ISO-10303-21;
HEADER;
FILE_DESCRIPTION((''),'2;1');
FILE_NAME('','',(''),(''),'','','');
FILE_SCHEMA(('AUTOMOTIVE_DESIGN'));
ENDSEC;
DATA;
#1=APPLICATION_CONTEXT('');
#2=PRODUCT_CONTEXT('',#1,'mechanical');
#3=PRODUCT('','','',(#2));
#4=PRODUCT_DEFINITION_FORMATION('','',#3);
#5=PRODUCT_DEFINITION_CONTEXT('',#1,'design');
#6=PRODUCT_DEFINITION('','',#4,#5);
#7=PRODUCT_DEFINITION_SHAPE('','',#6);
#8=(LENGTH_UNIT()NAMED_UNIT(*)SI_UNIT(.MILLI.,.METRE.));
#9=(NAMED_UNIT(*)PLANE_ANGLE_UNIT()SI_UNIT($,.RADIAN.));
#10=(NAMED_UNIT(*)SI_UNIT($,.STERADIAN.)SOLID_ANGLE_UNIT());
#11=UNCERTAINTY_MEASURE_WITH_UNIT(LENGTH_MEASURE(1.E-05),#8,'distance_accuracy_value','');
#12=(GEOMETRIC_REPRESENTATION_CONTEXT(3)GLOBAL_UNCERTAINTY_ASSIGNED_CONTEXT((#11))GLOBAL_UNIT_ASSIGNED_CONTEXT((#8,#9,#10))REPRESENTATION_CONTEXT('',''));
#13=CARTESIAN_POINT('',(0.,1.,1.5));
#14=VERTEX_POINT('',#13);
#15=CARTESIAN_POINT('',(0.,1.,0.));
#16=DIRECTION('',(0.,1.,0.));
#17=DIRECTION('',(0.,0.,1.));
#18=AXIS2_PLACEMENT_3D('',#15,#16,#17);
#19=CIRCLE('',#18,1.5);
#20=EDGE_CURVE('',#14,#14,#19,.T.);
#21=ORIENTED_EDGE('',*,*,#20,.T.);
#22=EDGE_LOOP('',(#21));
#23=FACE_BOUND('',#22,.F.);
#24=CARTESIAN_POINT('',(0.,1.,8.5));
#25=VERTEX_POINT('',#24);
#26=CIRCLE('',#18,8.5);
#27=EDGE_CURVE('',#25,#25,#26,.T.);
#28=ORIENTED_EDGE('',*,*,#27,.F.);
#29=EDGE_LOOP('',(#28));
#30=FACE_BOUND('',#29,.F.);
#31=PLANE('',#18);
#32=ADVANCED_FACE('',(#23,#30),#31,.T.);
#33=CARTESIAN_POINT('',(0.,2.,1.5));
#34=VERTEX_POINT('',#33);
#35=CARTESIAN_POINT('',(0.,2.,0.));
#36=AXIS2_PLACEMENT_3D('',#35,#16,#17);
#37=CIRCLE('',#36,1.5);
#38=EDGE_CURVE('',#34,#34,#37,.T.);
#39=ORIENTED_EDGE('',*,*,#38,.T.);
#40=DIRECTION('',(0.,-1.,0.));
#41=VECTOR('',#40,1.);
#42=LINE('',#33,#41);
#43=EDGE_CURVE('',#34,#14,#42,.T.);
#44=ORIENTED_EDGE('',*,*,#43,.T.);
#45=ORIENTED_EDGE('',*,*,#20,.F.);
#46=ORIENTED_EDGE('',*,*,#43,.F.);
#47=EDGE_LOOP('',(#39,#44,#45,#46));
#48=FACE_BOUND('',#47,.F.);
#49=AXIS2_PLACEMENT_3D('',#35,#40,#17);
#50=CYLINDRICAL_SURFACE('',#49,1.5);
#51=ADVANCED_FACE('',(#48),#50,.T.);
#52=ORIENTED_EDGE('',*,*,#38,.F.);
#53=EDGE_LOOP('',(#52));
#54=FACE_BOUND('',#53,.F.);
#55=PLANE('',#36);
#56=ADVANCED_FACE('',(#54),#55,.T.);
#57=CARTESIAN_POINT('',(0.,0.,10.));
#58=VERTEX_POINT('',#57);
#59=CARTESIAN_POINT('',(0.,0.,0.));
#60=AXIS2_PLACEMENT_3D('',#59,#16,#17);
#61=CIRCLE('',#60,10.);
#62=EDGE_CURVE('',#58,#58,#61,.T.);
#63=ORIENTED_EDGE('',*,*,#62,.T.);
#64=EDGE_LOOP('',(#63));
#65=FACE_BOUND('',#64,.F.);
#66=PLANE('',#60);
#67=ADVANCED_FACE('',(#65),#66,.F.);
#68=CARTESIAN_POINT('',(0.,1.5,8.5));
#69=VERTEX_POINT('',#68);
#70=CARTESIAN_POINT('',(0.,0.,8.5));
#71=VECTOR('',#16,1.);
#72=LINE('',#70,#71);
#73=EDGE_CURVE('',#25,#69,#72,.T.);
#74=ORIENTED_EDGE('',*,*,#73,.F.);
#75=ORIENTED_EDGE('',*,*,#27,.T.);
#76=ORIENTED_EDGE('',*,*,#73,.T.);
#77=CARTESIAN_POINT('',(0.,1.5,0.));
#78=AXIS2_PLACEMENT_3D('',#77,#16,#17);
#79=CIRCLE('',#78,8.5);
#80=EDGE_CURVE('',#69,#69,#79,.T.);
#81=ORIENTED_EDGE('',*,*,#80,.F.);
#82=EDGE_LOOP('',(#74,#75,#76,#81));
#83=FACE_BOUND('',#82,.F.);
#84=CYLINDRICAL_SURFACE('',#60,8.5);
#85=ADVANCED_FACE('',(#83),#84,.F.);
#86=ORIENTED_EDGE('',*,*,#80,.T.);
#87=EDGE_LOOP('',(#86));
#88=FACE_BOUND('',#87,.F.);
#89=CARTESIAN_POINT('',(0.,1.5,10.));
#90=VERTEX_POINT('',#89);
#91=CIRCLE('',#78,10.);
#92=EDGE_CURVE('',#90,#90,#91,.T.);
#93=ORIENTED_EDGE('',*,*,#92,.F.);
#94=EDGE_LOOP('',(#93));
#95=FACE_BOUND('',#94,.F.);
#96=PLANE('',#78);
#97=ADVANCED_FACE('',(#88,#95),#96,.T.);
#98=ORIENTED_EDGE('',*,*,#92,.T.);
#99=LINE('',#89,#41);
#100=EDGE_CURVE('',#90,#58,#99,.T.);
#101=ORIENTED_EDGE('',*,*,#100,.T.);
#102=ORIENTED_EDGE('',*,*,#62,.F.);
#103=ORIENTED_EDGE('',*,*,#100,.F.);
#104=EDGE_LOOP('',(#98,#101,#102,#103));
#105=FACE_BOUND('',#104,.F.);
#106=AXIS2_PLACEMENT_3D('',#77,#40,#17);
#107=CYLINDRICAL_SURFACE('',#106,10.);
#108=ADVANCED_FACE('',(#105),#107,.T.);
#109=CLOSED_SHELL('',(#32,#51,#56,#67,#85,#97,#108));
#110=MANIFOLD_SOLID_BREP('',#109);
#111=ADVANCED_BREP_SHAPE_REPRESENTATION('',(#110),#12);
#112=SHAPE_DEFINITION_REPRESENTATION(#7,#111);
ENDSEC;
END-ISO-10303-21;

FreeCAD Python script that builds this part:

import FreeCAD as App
import Part
import Sketcher
from FreeCAD import Vector

doc = App.newDocument("Part")
body = doc.addObject("PartDesign::Body", "Body")

# Sketch on YZ plane
sketch1 = body.newObject("Sketcher::SketchObject", "Sketch")
sketch1.AttachmentSupport = (doc.getObject("YZ_Plane"), [""])
sketch1.MapMode = "FlatFace"
sketch1.addGeometry([
    Part.LineSegment(Vector(0, 10, 0), Vector(0, 0, 0)),  # 0
    Part.LineSegment(Vector(0, 0, 0), Vector(2, 0, 0)),  # 1
    Part.LineSegment(Vector(2, 0, 0), Vector(2, 1.5, 0)),  # 2
    Part.LineSegment(Vector(2, 1.5, 0), Vector(1, 1.5, 0)),  # 3
    Part.LineSegment(Vector(1, 1.5, 0), Vector(1, 8.5, 0)),  # 4
    Part.LineSegment(Vector(1, 8.5, 0), Vector(1.5, 8.5, 0)),  # 5
    Part.LineSegment(Vector(1.5, 8.5, 0), Vector(1.5, 10, 0)),  # 6
    Part.LineSegment(Vector(1.5, 10, 0), Vector(0, 10, 0)),  # 7
], False)
sketch1.addConstraint([
    Sketcher.Constraint("Coincident", 0, 2, 1, 1),
    Sketcher.Constraint("Coincident", 1, 2, 2, 1),
    Sketcher.Constraint("Coincident", 2, 2, 3, 1),
    Sketcher.Constraint("Coincident", 3, 2, 4, 1),
    Sketcher.Constraint("Coincident", 4, 2, 5, 1),
    Sketcher.Constraint("Coincident", 5, 2, 6, 1),
    Sketcher.Constraint("Coincident", 6, 2, 7, 1),
    Sketcher.Constraint("Coincident", 7, 2, 0, 1),
    Sketcher.Constraint("Vertical", 0),
    Sketcher.Constraint("Horizontal", 1),
    Sketcher.Constraint("Vertical", 2),
    Sketcher.Constraint("Horizontal", 3),
    Sketcher.Constraint("Vertical", 4),
    Sketcher.Constraint("Horizontal", 5),
    Sketcher.Constraint("Vertical", 6),
    Sketcher.Constraint("Horizontal", 7),
    Sketcher.Constraint("Coincident", 0, 2, -1, 1),
    Sketcher.Constraint("Equal", 7, 2),
    Sketcher.Constraint("Equal", 2, 6),
    Sketcher.Constraint("DistanceX", 1, 1, 1, 2, 2.0),
    Sketcher.Constraint("DistanceX", 3, 2, 3, 1, 1.0),
    Sketcher.Constraint("DistanceY", 0, 2, 0, 1, 10.0),
    Sketcher.Constraint("DistanceY", 4, 1, 4, 2, 7.0),
])
revolution = body.newObject("PartDesign::Revolution", "Revolution")
revolution.Profile = sketch1
revolution.ReferenceAxis = (sketch1, ["H_Axis"])
revolution.Angle = 360

doc.recompute()
